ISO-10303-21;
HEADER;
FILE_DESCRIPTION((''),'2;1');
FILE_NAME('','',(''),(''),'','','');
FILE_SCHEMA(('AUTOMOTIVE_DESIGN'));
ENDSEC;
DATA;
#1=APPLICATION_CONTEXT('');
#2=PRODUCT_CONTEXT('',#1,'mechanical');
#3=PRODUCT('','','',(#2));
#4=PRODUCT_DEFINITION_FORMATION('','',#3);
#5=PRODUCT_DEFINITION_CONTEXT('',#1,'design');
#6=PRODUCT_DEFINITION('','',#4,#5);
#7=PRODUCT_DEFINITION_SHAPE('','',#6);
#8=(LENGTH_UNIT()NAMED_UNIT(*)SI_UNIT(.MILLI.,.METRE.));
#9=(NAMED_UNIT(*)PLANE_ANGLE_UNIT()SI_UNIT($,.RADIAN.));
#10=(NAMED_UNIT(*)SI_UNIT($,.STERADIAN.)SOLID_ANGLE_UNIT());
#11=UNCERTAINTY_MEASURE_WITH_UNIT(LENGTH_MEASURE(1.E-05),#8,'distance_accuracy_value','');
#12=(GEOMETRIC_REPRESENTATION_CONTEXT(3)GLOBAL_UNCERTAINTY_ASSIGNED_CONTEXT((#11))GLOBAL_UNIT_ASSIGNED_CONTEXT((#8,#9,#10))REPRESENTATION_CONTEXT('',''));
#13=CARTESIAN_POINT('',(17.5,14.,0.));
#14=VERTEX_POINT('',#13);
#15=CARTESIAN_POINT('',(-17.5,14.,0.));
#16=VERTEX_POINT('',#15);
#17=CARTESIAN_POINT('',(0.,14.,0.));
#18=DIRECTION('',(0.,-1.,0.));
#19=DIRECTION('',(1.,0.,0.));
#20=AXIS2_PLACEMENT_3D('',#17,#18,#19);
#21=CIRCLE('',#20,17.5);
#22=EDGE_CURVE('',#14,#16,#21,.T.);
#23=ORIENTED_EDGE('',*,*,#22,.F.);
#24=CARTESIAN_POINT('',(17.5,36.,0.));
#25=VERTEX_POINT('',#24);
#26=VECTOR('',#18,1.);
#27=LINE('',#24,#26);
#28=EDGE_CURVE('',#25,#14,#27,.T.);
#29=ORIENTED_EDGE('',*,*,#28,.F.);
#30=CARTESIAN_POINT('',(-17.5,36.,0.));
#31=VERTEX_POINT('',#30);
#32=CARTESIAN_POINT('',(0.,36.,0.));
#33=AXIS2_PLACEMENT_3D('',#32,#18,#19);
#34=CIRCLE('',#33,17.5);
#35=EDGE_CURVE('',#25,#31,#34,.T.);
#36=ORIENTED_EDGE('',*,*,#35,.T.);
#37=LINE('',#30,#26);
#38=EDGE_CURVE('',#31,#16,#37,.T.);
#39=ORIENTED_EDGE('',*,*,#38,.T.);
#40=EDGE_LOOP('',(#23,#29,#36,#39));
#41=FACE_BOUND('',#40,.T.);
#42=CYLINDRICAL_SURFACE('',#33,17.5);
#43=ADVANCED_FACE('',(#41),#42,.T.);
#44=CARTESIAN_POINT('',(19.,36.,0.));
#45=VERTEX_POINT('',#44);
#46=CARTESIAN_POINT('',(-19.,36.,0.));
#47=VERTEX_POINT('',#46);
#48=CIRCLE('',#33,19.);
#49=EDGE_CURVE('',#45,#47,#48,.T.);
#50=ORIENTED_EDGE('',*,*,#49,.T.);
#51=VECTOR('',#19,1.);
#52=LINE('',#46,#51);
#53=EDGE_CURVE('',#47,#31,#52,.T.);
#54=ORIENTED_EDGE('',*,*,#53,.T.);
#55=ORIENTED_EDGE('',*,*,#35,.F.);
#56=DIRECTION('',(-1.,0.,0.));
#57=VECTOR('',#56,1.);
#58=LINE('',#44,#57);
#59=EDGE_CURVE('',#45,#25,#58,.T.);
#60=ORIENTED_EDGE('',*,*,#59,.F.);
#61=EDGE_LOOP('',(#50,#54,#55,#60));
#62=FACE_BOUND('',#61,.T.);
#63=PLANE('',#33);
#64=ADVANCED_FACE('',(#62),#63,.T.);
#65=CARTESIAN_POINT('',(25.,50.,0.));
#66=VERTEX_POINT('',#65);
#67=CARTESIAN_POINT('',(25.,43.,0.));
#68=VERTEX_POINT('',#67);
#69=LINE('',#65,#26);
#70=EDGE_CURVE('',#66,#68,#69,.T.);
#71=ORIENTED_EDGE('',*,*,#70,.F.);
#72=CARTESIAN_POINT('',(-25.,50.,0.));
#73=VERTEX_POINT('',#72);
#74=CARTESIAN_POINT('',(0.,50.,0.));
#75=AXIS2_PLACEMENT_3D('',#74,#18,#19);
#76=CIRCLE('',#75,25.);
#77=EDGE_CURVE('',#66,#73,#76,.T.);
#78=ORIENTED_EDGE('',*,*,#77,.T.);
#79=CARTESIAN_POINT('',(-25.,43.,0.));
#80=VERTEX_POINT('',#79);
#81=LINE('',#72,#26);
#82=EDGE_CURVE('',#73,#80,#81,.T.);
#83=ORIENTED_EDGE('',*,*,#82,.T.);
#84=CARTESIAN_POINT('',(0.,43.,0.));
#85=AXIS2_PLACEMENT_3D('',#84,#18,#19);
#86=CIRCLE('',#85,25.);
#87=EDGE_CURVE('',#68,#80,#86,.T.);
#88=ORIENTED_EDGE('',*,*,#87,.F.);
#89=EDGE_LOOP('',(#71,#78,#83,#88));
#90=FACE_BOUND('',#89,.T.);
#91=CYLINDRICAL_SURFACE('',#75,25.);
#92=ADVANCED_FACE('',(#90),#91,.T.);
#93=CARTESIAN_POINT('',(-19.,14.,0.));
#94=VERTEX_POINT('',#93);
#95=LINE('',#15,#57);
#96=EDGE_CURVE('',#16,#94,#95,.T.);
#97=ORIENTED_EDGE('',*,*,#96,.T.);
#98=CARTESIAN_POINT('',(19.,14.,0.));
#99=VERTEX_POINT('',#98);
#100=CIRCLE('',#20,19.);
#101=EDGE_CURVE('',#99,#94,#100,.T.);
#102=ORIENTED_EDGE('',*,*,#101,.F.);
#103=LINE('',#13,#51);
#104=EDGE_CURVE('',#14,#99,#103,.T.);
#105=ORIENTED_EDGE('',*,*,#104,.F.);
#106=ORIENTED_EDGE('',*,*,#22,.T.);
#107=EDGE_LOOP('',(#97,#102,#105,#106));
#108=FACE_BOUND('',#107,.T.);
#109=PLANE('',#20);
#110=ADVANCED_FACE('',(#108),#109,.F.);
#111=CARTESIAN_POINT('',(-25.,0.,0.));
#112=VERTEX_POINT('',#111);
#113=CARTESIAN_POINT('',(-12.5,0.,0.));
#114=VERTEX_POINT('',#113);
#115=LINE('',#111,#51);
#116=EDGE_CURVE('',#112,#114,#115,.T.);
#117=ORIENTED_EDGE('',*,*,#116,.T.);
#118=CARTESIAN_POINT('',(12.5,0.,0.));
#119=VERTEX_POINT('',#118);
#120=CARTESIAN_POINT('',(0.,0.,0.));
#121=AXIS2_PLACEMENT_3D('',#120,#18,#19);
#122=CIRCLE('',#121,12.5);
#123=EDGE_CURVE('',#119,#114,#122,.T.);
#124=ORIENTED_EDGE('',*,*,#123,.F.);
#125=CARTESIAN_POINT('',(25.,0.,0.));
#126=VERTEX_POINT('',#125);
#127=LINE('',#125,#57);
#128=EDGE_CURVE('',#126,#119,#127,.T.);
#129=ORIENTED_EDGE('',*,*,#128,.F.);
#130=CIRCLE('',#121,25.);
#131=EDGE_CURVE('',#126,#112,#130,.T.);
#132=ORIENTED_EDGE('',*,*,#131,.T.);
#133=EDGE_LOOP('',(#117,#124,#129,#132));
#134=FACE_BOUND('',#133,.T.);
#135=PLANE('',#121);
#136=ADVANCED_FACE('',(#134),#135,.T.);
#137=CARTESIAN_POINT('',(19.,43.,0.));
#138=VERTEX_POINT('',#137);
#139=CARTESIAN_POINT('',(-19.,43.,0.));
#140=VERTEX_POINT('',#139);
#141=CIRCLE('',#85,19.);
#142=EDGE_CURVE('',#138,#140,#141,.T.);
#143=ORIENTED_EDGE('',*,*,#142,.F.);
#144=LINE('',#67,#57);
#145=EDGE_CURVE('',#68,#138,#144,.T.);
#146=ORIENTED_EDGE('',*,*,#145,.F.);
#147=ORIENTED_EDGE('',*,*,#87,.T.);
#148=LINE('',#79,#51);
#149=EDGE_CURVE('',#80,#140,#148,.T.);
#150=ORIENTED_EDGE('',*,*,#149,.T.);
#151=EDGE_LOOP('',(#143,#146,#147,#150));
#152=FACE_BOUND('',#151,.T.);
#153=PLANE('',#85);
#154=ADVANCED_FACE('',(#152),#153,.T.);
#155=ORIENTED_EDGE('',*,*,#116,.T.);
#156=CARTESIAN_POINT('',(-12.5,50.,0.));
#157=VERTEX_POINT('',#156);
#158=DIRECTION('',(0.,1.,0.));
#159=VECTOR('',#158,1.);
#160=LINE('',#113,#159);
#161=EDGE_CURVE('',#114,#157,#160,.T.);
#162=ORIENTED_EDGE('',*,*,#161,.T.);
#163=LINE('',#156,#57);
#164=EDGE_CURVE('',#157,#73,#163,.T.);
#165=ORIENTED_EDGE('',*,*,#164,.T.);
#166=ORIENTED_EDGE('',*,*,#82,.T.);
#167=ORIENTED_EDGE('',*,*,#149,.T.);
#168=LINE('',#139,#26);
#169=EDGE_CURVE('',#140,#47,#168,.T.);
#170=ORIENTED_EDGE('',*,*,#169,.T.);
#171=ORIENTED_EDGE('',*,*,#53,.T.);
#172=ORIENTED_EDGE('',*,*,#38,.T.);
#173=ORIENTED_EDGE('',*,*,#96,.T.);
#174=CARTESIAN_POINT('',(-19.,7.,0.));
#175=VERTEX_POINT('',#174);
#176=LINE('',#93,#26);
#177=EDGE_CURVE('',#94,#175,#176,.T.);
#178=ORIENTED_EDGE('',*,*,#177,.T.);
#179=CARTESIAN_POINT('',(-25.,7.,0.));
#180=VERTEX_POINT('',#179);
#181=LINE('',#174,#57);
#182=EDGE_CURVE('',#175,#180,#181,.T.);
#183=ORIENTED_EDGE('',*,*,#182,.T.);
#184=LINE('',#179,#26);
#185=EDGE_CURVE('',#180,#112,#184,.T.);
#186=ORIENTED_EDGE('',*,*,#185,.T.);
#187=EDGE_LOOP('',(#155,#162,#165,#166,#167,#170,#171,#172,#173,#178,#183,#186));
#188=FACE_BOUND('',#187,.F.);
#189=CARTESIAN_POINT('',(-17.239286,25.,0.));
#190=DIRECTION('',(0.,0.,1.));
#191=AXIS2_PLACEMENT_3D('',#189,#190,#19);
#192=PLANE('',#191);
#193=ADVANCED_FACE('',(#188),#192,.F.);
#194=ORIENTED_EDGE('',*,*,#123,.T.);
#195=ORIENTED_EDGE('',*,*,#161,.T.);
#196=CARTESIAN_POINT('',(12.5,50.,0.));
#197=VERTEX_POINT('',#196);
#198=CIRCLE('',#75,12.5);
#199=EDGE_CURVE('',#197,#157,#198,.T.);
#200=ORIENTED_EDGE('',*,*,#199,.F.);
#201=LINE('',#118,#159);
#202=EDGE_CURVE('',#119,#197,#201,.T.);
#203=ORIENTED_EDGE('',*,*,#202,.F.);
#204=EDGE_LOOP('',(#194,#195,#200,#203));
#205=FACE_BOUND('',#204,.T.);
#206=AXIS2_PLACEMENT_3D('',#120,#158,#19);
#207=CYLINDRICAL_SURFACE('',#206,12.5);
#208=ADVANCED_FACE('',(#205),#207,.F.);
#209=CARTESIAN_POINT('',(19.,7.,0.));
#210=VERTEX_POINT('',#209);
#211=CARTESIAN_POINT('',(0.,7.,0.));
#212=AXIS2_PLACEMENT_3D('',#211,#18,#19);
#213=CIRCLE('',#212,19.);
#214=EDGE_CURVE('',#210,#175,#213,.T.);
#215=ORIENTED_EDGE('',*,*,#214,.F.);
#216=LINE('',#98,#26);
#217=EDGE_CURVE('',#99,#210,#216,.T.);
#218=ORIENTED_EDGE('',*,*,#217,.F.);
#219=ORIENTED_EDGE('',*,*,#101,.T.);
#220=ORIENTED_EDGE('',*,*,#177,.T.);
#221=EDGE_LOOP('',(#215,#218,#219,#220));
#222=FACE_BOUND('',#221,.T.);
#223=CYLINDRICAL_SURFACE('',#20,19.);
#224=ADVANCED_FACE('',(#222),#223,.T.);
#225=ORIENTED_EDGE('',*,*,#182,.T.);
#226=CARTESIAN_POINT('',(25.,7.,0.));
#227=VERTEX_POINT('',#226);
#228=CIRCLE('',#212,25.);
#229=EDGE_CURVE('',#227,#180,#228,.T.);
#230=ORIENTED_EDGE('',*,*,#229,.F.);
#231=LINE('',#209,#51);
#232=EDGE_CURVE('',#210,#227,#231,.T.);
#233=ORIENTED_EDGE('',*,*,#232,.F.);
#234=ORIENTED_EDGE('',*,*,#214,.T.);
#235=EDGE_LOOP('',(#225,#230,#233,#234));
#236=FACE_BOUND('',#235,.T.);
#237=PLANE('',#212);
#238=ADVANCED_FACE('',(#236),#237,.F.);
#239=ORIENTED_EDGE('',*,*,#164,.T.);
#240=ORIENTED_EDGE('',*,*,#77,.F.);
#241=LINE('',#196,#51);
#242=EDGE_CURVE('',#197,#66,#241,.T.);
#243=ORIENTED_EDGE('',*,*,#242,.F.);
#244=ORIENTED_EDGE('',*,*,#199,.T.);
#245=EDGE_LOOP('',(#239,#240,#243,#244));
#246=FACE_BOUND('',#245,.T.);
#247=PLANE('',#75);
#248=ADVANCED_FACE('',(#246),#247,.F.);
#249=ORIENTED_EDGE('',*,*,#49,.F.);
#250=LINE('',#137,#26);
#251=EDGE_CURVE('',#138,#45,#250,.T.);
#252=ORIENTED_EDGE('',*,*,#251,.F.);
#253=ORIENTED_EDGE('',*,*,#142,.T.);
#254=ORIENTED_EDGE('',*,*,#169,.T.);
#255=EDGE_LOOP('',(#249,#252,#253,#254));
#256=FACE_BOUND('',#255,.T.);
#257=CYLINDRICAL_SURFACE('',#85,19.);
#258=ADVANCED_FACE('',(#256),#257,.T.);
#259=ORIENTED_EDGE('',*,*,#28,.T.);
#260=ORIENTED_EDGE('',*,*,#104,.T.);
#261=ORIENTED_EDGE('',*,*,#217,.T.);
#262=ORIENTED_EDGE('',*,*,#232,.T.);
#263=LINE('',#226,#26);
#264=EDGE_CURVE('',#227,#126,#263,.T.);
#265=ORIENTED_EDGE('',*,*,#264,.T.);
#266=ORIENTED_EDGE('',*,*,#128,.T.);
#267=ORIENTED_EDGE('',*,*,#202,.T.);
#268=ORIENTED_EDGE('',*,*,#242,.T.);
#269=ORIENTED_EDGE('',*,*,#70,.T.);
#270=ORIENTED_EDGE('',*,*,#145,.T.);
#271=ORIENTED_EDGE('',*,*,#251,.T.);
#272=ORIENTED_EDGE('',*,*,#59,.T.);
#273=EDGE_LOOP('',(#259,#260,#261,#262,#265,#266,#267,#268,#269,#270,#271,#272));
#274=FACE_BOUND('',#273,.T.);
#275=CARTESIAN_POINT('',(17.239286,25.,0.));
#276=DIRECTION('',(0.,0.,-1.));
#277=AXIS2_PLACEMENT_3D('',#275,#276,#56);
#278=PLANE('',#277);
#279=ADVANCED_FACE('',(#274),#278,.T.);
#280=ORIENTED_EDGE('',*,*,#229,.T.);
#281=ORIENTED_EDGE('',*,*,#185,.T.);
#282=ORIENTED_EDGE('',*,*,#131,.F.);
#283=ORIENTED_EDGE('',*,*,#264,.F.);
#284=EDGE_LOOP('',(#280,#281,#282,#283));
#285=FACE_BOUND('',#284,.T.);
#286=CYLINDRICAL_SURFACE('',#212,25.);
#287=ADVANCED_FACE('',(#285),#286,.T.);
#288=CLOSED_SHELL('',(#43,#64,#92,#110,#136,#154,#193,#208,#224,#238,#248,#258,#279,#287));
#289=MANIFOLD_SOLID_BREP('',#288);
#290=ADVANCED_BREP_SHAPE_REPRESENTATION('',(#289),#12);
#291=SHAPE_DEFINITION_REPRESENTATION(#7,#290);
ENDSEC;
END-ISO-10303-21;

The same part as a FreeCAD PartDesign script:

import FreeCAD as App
import Part
import Sketcher

V = App.Vector


def add_polygon(sketch, points):
    """Adds a closed chain of lines whose ends are joined by coincident constraints."""
    first, n = sketch.GeometryCount, len(points)
    for a, b in zip(points, points[1:] + points[:1]):
        sketch.addGeometry(Part.LineSegment(App.Vector(*a, 0), App.Vector(*b, 0)), False)
    for i in range(n):
        sketch.addConstraint(Sketcher.Constraint("Coincident", first + i, 2, first + (i + 1) % n, 1))

doc = App.newDocument("Part")
body = doc.addObject("PartDesign::Body", "Body")

# Sketch on XY plane
sketch1 = body.newObject("Sketcher::SketchObject", "Sketch")
sketch1.AttachmentSupport = (doc.getObject("XY_Plane"), [""])
sketch1.MapMode = "FlatFace"
add_polygon(sketch1, [(12.5, 50), (12.5, 0), (25, 0), (25, 7), (19, 7), (19, 14), (17.5, 14), (17.5, 36), (19, 36), (19, 43), (25, 43), (25, 50)])  # lines 0-11
sketch1.addConstraint([
    Sketcher.Constraint("Vertical", 0),
    Sketcher.Constraint("Horizontal", 1),
    Sketcher.Constraint("Vertical", 2),
    Sketcher.Constraint("Horizontal", 3),
    Sketcher.Constraint("Vertical", 4),
    Sketcher.Constraint("Horizontal", 5),
    Sketcher.Constraint("Vertical", 6),
    Sketcher.Constraint("Horizontal", 7),
    Sketcher.Constraint("Vertical", 8),
    Sketcher.Constraint("Horizontal", 9),
    Sketcher.Constraint("Vertical", 10),
    Sketcher.Constraint("Horizontal", 11),
    Sketcher.Constraint("PointOnObject", 0, 2, -1),
    Sketcher.Constraint("Vertical", 4, 2, 7, 2),
    Sketcher.Constraint("Vertical", 2, 2, 9, 2),
    Sketcher.Constraint("Equal", 2, 4),
    Sketcher.Constraint("Equal", 4, 8),
    Sketcher.Constraint("Equal", 8, 10),
    Sketcher.Constraint("DistanceX", 1, 1, 1, 2, 12.5),
    Sketcher.Constraint("DistanceX", -1, 1, 1, 2, 25.0),
    Sketcher.Constraint("DistanceX", -1, 1, 3, 2, 19.0),
    Sketcher.Constraint("DistanceX", -1, 1, 5, 2, 17.5),
    Sketcher.Constraint("DistanceY", 0, 2, 0, 1, 50.0),
    Sketcher.Constraint("DistanceY", 2, 1, 2, 2, 7.0),
])
revolution = body.newObject("PartDesign::Revolution", "Revolution")
revolution.Profile = sketch1
revolution.ReferenceAxis = (sketch1, ["V_Axis"])
revolution.Angle = 180
revolution.Reversed = True

doc.recompute()
